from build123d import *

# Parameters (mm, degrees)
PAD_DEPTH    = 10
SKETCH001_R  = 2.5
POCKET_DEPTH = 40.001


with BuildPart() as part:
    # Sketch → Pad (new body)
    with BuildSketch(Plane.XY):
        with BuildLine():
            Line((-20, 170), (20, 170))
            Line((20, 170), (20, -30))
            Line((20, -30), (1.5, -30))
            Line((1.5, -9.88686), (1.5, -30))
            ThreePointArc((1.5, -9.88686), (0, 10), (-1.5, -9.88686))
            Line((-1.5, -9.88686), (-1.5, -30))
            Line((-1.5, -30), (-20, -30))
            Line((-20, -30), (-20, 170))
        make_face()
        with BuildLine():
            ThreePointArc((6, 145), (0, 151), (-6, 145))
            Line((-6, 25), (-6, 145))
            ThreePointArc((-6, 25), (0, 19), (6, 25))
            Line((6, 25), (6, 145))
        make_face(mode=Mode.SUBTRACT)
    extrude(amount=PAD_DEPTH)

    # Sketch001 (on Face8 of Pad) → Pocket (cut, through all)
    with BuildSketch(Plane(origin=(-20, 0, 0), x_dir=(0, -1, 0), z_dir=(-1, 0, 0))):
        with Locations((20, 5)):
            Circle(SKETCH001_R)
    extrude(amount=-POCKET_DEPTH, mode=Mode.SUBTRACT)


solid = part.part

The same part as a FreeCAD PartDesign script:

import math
import FreeCAD as App
import Part
import Sketcher

V = App.Vector
Q = App.Units.Quantity

doc = App.newDocument("Part")
body = doc.addObject("PartDesign::Body", "Body")

# Sketch on XY plane
sketch1 = body.newObject("Sketcher::SketchObject", "Sketch")
sketch1.AttachmentSupport = (doc.getObject("XY_Plane"), [""])
sketch1.MapMode = "FlatFace"
sketch1.addGeometry([
    Part.LineSegment(V(20, 170, 0), V(-20, 170, 0)),  # 0
    Part.LineSegment(V(-20, 170, 0), V(-20, -30, 0)),  # 1
    Part.LineSegment(V(-20, -30, 0), V(-1.5, -30, 0)),  # 2
    Part.LineSegment(V(-1.5, -30, 0), V(-1.5, -9.9, 0)),  # 3
    Part.ArcOfCircle(Part.Circle(V(0, 0, 0), V(0, 0, 1), 10), math.radians(-81), math.radians(261)),  # 4
    Part.LineSegment(V(1.5, -9.9, 0), V(1.5, -30, 0)),  # 5
    Part.LineSegment(V(1.5, -30, 0), V(20, -30, 0)),  # 6
    Part.LineSegment(V(20, -30, 0), V(20, 170, 0)),  # 7
    Part.LineSegment(V(6, 145, 0), V(6, 25, 0)),  # 8
    Part.ArcOfCircle(Part.Circle(V(0, 25, 0), V(0, 0, 1), 6), math.radians(180), math.radians(360)),  # 9
    Part.LineSegment(V(-6, 25, 0), V(-6, 145, 0)),  # 10
    Part.ArcOfCircle(Part.Circle(V(0, 145, 0), V(0, 0, 1), 6), math.radians(0), math.radians(180)),  # 11
], False)
sketch1.addConstraint([
    Sketcher.Constraint("Coincident", 0, 2, 1, 1),
    Sketcher.Constraint("Coincident", 1, 2, 2, 1),
    Sketcher.Constraint("Coincident", 2, 2, 3, 1),
    Sketcher.Constraint("Coincident", 3, 2, 4, 2),
    Sketcher.Constraint("Coincident", 4, 1, 5, 1),
    Sketcher.Constraint("Coincident", 5, 2, 6, 1),
    Sketcher.Constraint("Coincident", 6, 2, 7, 1),
    Sketcher.Constraint("Coincident", 7, 2, 0, 1),
    Sketcher.Constraint("Tangent", 8, 2, 9, 2),
    Sketcher.Constraint("Tangent", 9, 1, 10, 1),
    Sketcher.Constraint("Tangent", 10, 2, 11, 2),
    Sketcher.Constraint("Tangent", 11, 1, 8, 1),
    Sketcher.Constraint("Horizontal", 0),
    Sketcher.Constraint("Vertical", 1),
    Sketcher.Constraint("Horizontal", 2),
    Sketcher.Constraint("Vertical", 3),
    Sketcher.Constraint("Vertical", 5),
    Sketcher.Constraint("Horizontal", 6),
    Sketcher.Constraint("Vertical", 7),
    Sketcher.Constraint("Vertical", 8),
    Sketcher.Constraint("Vertical", 10),
    Sketcher.Constraint("Coincident", 4, 3, -1, 1),
    Sketcher.Constraint("Symmetric", 2, 2, 5, 2, -2),
    Sketcher.Constraint("PointOnObject", 9, 3, -2),
    Sketcher.Constraint("Equal", 2, 6),
    Sketcher.Constraint("Radius", 4, Q("10 mm")),
    Sketcher.Constraint("Radius", 9, Q("6 mm")),
    Sketcher.Constraint("DistanceX", 0, 2, 0, 1, Q("40 mm")),
    Sketcher.Constraint("DistanceY", 1, 2, 1, 1, Q("200 mm")),
    Sketcher.Constraint("DistanceY", 8, 2, 8, 1, Q("120 mm")),
    Sketcher.Constraint("DistanceX", 2, 1, 2, 2, Q("18.5 mm")),
    Sketcher.Constraint("DistanceY", -1, 1, 9, 3, Q("25 mm")),
    Sketcher.Constraint("DistanceY", -1, 1, 0, 2, Q("170 mm")),
])
pad1 = body.newObject("PartDesign::Pad", "Pad")
pad1.Profile = sketch1
pad1.Length = 10

# Sketch on YZ plane
sketch2 = body.newObject("Sketcher::SketchObject", "Sketch001")
sketch2.AttachmentSupport = (doc.getObject("YZ_Plane"), [""])
sketch2.MapMode = "FlatFace"
sketch2.AttachmentOffset = App.Placement(V(0, 0, -20), App.Rotation())
sketch2.addGeometry(Part.Circle(V(-20, 5, 0), V(0, 0, 1), 2.5), False)
sketch2.addConstraint([
    Sketcher.Constraint("Diameter", 0, Q("5 mm")),
    Sketcher.Constraint("DistanceX", 0, 3, -1, 1, Q("20 mm")),
    Sketcher.Constraint("DistanceY", -1, 1, 0, 3, Q("5 mm")),
])
pocket1 = body.newObject("PartDesign::Pocket", "Pocket")
pocket1.Profile = sketch2
pocket1.Type = "ThroughAll"
pocket1.Reversed = True

doc.recompute()
